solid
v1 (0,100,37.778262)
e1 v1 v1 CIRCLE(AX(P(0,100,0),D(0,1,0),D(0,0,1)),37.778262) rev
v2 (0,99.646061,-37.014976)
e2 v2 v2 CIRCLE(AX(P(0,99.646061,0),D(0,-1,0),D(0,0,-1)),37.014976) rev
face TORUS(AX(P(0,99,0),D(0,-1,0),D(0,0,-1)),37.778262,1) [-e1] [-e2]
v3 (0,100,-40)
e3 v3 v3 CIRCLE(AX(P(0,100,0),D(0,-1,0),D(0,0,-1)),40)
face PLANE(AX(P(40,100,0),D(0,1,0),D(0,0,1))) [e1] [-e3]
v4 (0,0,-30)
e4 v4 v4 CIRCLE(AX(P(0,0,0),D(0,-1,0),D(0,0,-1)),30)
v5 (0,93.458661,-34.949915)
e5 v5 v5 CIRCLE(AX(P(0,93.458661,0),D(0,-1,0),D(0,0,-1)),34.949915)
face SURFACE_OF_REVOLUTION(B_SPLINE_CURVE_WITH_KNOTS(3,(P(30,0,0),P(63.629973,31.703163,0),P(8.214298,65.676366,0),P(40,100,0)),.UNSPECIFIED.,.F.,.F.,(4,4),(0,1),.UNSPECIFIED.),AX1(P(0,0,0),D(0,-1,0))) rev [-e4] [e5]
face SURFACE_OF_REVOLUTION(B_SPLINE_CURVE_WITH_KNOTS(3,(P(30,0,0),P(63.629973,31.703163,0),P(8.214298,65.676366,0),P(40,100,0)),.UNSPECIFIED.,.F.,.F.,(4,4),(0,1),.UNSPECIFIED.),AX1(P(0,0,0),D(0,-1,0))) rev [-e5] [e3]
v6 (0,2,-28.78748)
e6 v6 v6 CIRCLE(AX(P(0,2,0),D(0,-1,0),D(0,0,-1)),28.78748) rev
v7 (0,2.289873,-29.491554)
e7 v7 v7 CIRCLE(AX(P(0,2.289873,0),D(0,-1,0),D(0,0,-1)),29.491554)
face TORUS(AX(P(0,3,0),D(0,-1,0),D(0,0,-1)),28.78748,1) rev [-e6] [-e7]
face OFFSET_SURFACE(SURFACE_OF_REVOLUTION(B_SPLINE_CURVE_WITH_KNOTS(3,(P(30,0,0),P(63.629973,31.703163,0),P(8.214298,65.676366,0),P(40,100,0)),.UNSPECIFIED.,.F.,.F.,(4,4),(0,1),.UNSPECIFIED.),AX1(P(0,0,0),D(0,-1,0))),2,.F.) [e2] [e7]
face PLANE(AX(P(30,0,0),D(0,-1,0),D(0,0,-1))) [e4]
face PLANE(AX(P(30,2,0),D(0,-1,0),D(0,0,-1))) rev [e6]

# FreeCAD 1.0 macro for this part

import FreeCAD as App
import Part
import Sketcher
from FreeCAD import Vector


def edges_at(feature, points):
    """Names of the edges that pass closest to the given points."""
    edges = feature.Shape.Edges
    near = lambda p: min(range(len(edges)), key=lambda i: edges[i].distToShape(Part.Vertex(*p))[0])
    return sorted({f"Edge{near(p) + 1}" for p in points})


def faces_at(feature, points):
    """Names of the faces that lie closest to the given points."""
    faces = feature.Shape.Faces
    near = lambda p: min(range(len(faces)), key=lambda i: faces[i].distToShape(Part.Vertex(*p))[0])
    return sorted({f"Face{near(p) + 1}" for p in points})

doc = App.newDocument("Part")
body = doc.addObject("PartDesign::Body", "Body")

sketch1 = doc.addObject("Sketcher::SketchObject", "Sketch")
body.addObject(sketch1)
sketch1.AttachmentSupport = (doc.XY_Plane, [""])
sketch1.MapMode = "FlatFace"
sketch1.addGeometry([
    Part.LineSegment(Vector(40, 100, 0), Vector(0, 100, 0)),
    Part.LineSegment(Vector(0, 100, 0), Vector(0, 0, 0)),
    Part.LineSegment(Vector(0, 0, 0), Vector(30, 0, 0)),
    Part.BSplineCurve([Vector(40, 100, 0), Vector(8.214298, 65.676366, 0), Vector(63.629973, 31.703163, 0), Vector(30, 0, 0)], [4, 4], [0, 1], False, 3, [1, 1, 1, 1], False),
], False)
sketch1.addConstraint([
    Sketcher.Constraint("Block", 3),
    Sketcher.Constraint("Coincident", 0, 2, 1, 1),
    Sketcher.Constraint("Coincident", 1, 2, 2, 1),
    Sketcher.Constraint("Coincident", 2, 2, 3, 2),
    Sketcher.Constraint("Coincident", 3, 1, 0, 1),
    Sketcher.Constraint("Horizontal", 0),
    Sketcher.Constraint("Vertical", 1),
    Sketcher.Constraint("Horizontal", 2),
    Sketcher.Constraint("PointOnObject", 0, 2, -2),
])
revolution = doc.addObject("PartDesign::Revolution", "Revolution")
body.addObject(revolution)
revolution.Profile = sketch1
revolution.ReferenceAxis = (sketch1, ["V_Axis"])
revolution.Angle = 360
doc.recompute()

thickness = doc.addObject("PartDesign::Thickness", "Thickness")
body.addObject(thickness)
thickness.Base = (revolution, faces_at(revolution, [(0, 100, 0)]))
thickness.Value = 2
thickness.Reversed = True
thickness.Join = "Intersection"
doc.recompute()

fillet = doc.addObject("PartDesign::Fillet", "Fillet")
body.addObject(fillet)
fillet.Base = (thickness, edges_at(thickness, [(-37.317, 100, 0), (-29.197, 2, 0)]))
fillet.Radius = 1

doc.recompute()
